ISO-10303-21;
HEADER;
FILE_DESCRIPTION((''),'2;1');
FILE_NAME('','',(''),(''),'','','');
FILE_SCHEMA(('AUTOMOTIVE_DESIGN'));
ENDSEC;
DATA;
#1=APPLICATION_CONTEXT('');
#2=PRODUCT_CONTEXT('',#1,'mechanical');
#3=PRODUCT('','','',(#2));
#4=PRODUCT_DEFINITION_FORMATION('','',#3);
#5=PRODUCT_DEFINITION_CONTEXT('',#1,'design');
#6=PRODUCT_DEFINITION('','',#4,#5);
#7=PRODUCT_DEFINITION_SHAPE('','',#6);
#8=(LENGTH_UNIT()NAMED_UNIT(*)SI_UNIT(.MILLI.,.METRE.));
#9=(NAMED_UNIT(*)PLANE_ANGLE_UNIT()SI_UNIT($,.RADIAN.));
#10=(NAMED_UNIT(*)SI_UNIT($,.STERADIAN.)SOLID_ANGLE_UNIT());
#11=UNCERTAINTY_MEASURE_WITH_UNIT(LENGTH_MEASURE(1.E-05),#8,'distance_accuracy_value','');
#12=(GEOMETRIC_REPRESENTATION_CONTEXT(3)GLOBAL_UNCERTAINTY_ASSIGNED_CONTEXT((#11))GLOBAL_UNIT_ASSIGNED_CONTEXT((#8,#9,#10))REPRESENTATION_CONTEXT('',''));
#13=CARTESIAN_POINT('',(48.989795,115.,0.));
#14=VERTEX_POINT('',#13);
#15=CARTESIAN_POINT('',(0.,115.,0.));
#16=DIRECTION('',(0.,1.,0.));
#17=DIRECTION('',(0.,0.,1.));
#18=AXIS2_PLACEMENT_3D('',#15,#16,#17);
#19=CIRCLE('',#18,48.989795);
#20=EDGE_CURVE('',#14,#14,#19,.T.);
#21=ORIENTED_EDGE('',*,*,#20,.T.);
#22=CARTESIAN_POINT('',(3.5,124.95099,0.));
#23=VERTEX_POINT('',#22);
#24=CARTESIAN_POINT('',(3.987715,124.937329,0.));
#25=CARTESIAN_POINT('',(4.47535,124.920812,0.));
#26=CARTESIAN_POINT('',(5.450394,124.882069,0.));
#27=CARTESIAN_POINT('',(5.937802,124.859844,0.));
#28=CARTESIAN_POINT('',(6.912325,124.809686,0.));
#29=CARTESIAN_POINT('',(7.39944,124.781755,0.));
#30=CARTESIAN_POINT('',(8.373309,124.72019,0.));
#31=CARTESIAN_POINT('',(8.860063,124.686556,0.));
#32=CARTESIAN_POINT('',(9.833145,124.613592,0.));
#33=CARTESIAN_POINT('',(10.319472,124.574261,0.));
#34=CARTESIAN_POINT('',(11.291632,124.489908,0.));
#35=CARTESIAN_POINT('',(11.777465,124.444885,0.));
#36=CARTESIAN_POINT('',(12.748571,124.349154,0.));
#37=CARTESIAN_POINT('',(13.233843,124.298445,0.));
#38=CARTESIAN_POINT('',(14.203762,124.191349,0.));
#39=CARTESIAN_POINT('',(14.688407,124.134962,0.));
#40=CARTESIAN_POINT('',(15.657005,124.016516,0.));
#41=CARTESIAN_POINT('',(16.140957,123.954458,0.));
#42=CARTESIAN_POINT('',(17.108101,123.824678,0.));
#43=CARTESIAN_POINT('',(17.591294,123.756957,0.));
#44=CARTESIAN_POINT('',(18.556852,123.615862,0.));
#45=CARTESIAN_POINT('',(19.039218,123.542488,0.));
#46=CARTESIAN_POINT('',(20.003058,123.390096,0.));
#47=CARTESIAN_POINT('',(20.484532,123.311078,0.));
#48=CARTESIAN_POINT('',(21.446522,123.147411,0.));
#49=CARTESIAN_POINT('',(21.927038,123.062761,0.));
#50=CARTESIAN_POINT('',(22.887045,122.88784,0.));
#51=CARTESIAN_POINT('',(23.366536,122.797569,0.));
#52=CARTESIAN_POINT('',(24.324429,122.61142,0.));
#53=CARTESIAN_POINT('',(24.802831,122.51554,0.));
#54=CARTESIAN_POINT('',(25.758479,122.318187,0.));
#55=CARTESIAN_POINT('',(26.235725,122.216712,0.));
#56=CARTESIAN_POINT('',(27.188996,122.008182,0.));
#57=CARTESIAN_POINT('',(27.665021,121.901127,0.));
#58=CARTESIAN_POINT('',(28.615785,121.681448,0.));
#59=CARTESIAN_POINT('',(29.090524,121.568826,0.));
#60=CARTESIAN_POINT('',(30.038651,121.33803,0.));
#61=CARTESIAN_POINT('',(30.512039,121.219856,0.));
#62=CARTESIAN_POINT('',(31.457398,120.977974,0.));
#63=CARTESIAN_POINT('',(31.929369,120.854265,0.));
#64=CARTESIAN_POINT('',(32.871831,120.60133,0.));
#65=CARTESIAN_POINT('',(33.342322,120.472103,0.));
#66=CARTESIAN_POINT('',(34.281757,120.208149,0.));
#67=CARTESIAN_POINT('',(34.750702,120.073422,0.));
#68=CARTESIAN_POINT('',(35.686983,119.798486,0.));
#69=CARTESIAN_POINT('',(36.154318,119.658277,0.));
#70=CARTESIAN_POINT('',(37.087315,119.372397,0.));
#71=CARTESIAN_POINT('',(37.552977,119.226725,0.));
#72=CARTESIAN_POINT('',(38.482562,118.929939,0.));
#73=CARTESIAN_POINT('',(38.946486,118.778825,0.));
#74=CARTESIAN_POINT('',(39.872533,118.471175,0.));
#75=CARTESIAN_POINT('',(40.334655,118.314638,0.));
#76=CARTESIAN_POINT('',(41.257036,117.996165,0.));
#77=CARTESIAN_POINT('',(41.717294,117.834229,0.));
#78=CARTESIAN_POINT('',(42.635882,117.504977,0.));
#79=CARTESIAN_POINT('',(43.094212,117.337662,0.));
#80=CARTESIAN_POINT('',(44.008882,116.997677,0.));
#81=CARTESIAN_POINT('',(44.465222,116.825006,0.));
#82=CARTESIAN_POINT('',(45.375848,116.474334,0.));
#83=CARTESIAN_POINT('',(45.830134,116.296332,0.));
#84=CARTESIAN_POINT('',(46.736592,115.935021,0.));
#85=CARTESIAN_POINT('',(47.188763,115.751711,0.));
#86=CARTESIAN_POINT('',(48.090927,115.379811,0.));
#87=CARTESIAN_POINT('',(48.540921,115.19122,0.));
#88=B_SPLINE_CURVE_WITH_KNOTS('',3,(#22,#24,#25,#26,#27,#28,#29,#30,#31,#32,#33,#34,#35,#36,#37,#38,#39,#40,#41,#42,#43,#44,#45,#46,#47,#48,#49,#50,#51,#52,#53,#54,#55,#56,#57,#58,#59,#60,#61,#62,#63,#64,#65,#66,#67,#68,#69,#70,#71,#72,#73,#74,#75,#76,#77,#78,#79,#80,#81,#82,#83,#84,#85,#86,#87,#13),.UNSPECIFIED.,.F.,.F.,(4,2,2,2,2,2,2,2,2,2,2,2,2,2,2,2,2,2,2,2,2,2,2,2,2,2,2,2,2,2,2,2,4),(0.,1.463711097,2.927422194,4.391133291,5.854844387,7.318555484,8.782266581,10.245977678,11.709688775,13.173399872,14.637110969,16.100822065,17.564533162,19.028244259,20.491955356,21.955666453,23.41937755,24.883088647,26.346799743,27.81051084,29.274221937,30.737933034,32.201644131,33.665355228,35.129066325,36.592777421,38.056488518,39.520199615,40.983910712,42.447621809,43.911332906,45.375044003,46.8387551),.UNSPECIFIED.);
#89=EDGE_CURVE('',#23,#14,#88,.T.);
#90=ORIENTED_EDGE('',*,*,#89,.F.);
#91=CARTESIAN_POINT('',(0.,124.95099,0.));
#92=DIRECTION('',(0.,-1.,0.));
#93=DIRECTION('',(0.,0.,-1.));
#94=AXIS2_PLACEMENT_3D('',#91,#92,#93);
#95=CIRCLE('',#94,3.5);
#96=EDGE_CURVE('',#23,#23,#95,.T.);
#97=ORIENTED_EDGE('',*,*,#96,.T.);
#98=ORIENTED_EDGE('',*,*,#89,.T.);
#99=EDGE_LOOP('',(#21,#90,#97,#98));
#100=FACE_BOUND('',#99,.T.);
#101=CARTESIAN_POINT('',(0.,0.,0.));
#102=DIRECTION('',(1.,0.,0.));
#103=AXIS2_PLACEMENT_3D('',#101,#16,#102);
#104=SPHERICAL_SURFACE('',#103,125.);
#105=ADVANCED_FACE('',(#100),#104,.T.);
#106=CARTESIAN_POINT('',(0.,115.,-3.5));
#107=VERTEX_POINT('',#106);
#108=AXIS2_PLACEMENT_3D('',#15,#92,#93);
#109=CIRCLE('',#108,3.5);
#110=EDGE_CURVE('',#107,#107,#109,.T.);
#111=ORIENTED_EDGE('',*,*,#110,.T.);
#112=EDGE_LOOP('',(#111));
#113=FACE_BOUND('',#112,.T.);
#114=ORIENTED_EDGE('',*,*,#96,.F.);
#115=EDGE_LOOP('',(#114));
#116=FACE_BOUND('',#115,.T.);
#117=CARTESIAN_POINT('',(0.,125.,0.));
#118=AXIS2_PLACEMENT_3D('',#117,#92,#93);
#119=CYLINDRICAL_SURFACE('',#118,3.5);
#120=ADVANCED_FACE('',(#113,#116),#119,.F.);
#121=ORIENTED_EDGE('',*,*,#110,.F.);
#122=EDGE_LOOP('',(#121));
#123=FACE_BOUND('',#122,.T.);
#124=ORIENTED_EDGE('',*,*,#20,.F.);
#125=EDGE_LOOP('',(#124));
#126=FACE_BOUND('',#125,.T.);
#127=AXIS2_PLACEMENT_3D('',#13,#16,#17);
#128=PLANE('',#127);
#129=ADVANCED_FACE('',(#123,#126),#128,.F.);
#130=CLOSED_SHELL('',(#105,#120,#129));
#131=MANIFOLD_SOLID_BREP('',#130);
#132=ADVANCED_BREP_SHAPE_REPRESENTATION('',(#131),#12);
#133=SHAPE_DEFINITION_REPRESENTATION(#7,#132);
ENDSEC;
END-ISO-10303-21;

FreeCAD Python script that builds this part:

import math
import FreeCAD as App
import Part
import Sketcher
from FreeCAD import Vector

doc = App.newDocument("Part")
body = doc.addObject("PartDesign::Body", "Body")

sketch1 = doc.addObject("Sketcher::SketchObject", "Sketch")
body.addObject(sketch1)
sketch1.AttachmentSupport = (doc.XY_Plane, [""])
sketch1.MapMode = "FlatFace"
sketch1.addGeometry([
    Part.LineSegment(Vector(0, 115, 0), Vector(49, 115, 0)),
    Part.ArcOfCircle(Part.Circle(Vector(0, 0, 0), Vector(0, 0, 1), 125), math.radians(67), math.radians(90)),
    Part.LineSegment(Vector(0, 125, 0), Vector(0, 115, 0)),
], False)
sketch1.addConstraint([
    Sketcher.Constraint("Coincident", 0, 2, 1, 1),
    Sketcher.Constraint("Coincident", 1, 2, 2, 1),
    Sketcher.Constraint("Coincident", 2, 2, 0, 1),
    Sketcher.Constraint("Horizontal", 0),
    Sketcher.Constraint("Vertical", 2),
    Sketcher.Constraint("Coincident", 1, 3, -1, 1),
    Sketcher.Constraint("PointOnObject", 1, 2, -2),
    Sketcher.Constraint("Radius", 1, 125.0),
    Sketcher.Constraint("DistanceY", 2, 2, 2, 1, 10.0),
])
revolution = doc.addObject("PartDesign::Revolution", "Revolution")
body.addObject(revolution)
revolution.Profile = sketch1
revolution.ReferenceAxis = (sketch1, ["V_Axis"])
revolution.Angle = 360

sketch2 = doc.addObject("Sketcher::SketchObject", "Sketch001")
body.addObject(sketch2)
sketch2.AttachmentSupport = (doc.XZ_Plane, [""])
sketch2.MapMode = "FlatFace"
sketch2.AttachmentOffset = App.Placement(Vector(0, 0, -115), App.Rotation())
sketch2.addGeometry(Part.Circle(Vector(0, 0, 0), Vector(0, 0, 1), 3.5), False)
sketch2.addConstraint([
    Sketcher.Constraint("Coincident", 0, 3, -1, 1),
    Sketcher.Constraint("Diameter", 0, 7.0),
])
pocket1 = doc.addObject("PartDesign::Pocket", "Pocket")
body.addObject(pocket1)
pocket1.Profile = sketch2
pocket1.Type = "ThroughAll"

doc.recompute()
